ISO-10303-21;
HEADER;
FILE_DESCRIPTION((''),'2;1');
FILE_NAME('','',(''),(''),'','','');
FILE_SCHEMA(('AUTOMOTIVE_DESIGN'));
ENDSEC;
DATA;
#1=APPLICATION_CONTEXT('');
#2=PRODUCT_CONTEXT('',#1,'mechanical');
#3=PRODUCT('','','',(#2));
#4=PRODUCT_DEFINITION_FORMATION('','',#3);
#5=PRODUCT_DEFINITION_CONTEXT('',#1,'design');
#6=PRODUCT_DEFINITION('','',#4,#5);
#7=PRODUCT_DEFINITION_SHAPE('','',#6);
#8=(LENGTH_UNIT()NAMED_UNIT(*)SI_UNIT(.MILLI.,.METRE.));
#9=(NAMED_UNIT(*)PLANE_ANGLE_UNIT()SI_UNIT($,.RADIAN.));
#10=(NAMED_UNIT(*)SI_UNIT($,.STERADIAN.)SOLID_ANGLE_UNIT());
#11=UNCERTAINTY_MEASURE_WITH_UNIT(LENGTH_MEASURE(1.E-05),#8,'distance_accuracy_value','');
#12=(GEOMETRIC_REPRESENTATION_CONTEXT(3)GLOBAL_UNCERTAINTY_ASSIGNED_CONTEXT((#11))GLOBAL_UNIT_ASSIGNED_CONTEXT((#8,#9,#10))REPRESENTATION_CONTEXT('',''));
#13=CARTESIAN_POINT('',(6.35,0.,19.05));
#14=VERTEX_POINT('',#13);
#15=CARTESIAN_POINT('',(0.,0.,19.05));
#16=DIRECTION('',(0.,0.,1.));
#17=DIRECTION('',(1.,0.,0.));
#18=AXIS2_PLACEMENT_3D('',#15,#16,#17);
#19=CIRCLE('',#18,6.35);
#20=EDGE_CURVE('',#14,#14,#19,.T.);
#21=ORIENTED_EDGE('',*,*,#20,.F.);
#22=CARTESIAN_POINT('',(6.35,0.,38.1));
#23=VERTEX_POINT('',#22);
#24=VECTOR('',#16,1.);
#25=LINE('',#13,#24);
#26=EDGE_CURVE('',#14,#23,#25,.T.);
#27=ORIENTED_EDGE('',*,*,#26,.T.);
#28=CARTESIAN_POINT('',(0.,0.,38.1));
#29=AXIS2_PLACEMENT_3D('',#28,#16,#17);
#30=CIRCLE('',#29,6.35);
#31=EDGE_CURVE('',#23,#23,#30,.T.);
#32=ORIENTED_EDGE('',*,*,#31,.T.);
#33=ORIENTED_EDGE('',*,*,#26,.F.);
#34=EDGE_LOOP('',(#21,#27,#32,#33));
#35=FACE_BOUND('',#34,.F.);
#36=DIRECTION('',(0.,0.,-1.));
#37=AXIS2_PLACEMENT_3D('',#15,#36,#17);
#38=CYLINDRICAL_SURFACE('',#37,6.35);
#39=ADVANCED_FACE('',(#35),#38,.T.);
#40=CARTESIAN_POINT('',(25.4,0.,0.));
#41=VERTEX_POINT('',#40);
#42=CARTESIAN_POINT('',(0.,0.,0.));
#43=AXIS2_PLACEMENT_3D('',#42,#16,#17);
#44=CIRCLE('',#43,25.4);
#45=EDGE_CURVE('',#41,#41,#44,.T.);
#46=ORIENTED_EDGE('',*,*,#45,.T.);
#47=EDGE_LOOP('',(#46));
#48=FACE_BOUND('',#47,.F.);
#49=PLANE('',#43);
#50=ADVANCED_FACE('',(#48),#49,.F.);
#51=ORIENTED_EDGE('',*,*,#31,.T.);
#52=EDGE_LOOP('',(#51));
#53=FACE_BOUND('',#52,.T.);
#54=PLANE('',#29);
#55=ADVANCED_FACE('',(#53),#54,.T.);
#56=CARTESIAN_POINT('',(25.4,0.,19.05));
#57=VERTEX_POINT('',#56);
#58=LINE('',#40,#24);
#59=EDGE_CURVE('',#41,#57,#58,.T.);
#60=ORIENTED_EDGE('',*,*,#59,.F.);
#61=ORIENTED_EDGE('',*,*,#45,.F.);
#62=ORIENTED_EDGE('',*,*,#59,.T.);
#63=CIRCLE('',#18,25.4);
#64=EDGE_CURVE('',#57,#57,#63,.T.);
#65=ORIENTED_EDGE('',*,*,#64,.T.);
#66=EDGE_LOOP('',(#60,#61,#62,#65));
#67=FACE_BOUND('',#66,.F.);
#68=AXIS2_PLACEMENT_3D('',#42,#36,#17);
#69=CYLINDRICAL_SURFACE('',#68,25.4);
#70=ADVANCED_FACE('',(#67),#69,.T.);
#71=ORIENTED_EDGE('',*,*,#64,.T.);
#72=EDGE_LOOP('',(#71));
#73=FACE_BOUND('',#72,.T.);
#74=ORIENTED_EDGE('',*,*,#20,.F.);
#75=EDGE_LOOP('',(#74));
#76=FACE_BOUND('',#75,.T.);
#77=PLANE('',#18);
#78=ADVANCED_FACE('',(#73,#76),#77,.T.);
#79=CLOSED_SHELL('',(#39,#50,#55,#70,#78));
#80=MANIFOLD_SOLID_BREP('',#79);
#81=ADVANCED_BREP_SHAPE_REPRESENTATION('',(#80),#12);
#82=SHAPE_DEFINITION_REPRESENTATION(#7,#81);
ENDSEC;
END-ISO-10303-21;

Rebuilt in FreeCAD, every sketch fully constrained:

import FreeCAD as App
import Part
import Sketcher

V = App.Vector
Q = App.Units.Quantity

doc = App.newDocument("Part")
body = doc.addObject("PartDesign::Body", "Body")

# Sketch on XY plane
sketch1 = body.newObject("Sketcher::SketchObject", "Sketch")
sketch1.AttachmentSupport = (doc.getObject("XY_Plane"), [""])
sketch1.MapMode = "FlatFace"
sketch1.addGeometry(Part.Circle(V(0, 0, 0), V(0, 0, 1), 25), False)
sketch1.addConstraint([
    Sketcher.Constraint("Coincident", 0, 3, -1, 1),
    Sketcher.Constraint("Diameter", 0, Q("2 in")),
])
pad1 = body.newObject("PartDesign::Pad", "Pad")
pad1.Profile = sketch1
pad1.Length = Q("0.75 in")

# Sketch on XY plane
sketch2 = body.newObject("Sketcher::SketchObject", "Sketch001")
sketch2.AttachmentSupport = (doc.getObject("XY_Plane"), [""])
sketch2.MapMode = "FlatFace"
sketch2.AttachmentOffset = App.Placement(V(0, 0, 0.75 * 25.4), App.Rotation())
sketch2.addGeometry(Part.Circle(V(0, 0, 0), V(0, 0, 1), 6), False)
sketch2.addConstraint([
    Sketcher.Constraint("Coincident", 0, 3, -1, 1),
    Sketcher.Constraint("Diameter", 0, Q("0.5 in")),
])
pad2 = body.newObject("PartDesign::Pad", "Pad001")
pad2.Profile = sketch2
pad2.Length = Q("0.75 in")

doc.recompute()
